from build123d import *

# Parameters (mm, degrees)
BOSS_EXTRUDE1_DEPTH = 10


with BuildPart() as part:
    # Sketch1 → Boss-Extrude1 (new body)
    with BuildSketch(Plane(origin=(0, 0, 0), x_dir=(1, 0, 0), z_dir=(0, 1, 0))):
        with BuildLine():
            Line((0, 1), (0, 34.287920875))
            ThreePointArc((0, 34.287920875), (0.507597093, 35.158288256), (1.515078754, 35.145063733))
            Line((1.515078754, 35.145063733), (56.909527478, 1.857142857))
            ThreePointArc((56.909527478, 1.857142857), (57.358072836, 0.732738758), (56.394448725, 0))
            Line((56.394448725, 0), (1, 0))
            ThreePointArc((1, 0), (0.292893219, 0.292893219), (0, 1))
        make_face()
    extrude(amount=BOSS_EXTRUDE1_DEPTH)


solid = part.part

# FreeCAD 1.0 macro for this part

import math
import FreeCAD as App
import Part
import Sketcher

V = App.Vector
Q = App.Units.Quantity

doc = App.newDocument("Part")
params = doc.addObject("Spreadsheet::Sheet", "Params")
for row, (alias, value) in enumerate([
    ("sketch1_radius", "1 mm"),
    ("pad1_length", "10 mm"),
], start=1):
    params.set(f"A{row}", alias)
    params.set(f"B{row}", "=" + value)
    params.setAlias(f"B{row}", alias)

body = doc.addObject("PartDesign::Body", "Body")

# Sketch on XZ plane
sketch1 = body.newObject("Sketcher::SketchObject", "Sketch")
sketch1.AttachmentSupport = (doc.getObject("XZ_Plane"), [""])
sketch1.MapMode = "FlatFace"
sketch1.addGeometry([
    Part.LineSegment(V(0, -34.3, 0), V(0, -1, 0)),  # 0
    Part.ArcOfCircle(Part.Circle(V(1, -1, 0), V(0, 0, 1), 1), math.radians(90), math.radians(180)),  # 1
    Part.LineSegment(V(1, 0, 0), V(56.4, 0, 0)),  # 2
    Part.ArcOfCircle(Part.Circle(V(56.4, -1, 0), V(0, 0, 1), 1), math.radians(-59), math.radians(90)),  # 3
    Part.LineSegment(V(56.9, -1.9, 0), V(1.5, -35.1, 0)),  # 4
    Part.ArcOfCircle(Part.Circle(V(1, -34.3, 0), V(0, 0, 1), 1), math.radians(180), math.radians(301)),  # 5
], False)
sketch1.addConstraint([
    Sketcher.Constraint("Tangent", 0, 2, 1, 2),
    Sketcher.Constraint("Tangent", 1, 1, 2, 1),
    Sketcher.Constraint("Tangent", 2, 2, 3, 2),
    Sketcher.Constraint("Tangent", 3, 1, 4, 1),
    Sketcher.Constraint("Tangent", 4, 2, 5, 2),
    Sketcher.Constraint("Tangent", 5, 1, 0, 1),
    Sketcher.Constraint("Vertical", 0),
    Sketcher.Constraint("Horizontal", 2),
    Sketcher.Constraint("Equal", 1, 3),
    Sketcher.Constraint("Equal", 3, 5),
    Sketcher.Constraint("PointOnObject", 0, 2, -2),
    Sketcher.Constraint("PointOnObject", 1, 1, -1),
    Sketcher.Constraint("Radius", 1, Q("1 mm")),
    Sketcher.Constraint("DistanceX", 2, 1, 2, 2, Q("55.394449 mm")),
    Sketcher.Constraint("DistanceY", 0, 1, 0, 2, Q("33.287921 mm")),
])
sketch1.setExpression("Constraints[12]", "Params.sketch1_radius")
pad1 = body.newObject("PartDesign::Pad", "Pad")
pad1.Profile = sketch1
pad1.setExpression("Length", "Params.pad1_length")
pad1.Reversed = True

doc.recompute()
